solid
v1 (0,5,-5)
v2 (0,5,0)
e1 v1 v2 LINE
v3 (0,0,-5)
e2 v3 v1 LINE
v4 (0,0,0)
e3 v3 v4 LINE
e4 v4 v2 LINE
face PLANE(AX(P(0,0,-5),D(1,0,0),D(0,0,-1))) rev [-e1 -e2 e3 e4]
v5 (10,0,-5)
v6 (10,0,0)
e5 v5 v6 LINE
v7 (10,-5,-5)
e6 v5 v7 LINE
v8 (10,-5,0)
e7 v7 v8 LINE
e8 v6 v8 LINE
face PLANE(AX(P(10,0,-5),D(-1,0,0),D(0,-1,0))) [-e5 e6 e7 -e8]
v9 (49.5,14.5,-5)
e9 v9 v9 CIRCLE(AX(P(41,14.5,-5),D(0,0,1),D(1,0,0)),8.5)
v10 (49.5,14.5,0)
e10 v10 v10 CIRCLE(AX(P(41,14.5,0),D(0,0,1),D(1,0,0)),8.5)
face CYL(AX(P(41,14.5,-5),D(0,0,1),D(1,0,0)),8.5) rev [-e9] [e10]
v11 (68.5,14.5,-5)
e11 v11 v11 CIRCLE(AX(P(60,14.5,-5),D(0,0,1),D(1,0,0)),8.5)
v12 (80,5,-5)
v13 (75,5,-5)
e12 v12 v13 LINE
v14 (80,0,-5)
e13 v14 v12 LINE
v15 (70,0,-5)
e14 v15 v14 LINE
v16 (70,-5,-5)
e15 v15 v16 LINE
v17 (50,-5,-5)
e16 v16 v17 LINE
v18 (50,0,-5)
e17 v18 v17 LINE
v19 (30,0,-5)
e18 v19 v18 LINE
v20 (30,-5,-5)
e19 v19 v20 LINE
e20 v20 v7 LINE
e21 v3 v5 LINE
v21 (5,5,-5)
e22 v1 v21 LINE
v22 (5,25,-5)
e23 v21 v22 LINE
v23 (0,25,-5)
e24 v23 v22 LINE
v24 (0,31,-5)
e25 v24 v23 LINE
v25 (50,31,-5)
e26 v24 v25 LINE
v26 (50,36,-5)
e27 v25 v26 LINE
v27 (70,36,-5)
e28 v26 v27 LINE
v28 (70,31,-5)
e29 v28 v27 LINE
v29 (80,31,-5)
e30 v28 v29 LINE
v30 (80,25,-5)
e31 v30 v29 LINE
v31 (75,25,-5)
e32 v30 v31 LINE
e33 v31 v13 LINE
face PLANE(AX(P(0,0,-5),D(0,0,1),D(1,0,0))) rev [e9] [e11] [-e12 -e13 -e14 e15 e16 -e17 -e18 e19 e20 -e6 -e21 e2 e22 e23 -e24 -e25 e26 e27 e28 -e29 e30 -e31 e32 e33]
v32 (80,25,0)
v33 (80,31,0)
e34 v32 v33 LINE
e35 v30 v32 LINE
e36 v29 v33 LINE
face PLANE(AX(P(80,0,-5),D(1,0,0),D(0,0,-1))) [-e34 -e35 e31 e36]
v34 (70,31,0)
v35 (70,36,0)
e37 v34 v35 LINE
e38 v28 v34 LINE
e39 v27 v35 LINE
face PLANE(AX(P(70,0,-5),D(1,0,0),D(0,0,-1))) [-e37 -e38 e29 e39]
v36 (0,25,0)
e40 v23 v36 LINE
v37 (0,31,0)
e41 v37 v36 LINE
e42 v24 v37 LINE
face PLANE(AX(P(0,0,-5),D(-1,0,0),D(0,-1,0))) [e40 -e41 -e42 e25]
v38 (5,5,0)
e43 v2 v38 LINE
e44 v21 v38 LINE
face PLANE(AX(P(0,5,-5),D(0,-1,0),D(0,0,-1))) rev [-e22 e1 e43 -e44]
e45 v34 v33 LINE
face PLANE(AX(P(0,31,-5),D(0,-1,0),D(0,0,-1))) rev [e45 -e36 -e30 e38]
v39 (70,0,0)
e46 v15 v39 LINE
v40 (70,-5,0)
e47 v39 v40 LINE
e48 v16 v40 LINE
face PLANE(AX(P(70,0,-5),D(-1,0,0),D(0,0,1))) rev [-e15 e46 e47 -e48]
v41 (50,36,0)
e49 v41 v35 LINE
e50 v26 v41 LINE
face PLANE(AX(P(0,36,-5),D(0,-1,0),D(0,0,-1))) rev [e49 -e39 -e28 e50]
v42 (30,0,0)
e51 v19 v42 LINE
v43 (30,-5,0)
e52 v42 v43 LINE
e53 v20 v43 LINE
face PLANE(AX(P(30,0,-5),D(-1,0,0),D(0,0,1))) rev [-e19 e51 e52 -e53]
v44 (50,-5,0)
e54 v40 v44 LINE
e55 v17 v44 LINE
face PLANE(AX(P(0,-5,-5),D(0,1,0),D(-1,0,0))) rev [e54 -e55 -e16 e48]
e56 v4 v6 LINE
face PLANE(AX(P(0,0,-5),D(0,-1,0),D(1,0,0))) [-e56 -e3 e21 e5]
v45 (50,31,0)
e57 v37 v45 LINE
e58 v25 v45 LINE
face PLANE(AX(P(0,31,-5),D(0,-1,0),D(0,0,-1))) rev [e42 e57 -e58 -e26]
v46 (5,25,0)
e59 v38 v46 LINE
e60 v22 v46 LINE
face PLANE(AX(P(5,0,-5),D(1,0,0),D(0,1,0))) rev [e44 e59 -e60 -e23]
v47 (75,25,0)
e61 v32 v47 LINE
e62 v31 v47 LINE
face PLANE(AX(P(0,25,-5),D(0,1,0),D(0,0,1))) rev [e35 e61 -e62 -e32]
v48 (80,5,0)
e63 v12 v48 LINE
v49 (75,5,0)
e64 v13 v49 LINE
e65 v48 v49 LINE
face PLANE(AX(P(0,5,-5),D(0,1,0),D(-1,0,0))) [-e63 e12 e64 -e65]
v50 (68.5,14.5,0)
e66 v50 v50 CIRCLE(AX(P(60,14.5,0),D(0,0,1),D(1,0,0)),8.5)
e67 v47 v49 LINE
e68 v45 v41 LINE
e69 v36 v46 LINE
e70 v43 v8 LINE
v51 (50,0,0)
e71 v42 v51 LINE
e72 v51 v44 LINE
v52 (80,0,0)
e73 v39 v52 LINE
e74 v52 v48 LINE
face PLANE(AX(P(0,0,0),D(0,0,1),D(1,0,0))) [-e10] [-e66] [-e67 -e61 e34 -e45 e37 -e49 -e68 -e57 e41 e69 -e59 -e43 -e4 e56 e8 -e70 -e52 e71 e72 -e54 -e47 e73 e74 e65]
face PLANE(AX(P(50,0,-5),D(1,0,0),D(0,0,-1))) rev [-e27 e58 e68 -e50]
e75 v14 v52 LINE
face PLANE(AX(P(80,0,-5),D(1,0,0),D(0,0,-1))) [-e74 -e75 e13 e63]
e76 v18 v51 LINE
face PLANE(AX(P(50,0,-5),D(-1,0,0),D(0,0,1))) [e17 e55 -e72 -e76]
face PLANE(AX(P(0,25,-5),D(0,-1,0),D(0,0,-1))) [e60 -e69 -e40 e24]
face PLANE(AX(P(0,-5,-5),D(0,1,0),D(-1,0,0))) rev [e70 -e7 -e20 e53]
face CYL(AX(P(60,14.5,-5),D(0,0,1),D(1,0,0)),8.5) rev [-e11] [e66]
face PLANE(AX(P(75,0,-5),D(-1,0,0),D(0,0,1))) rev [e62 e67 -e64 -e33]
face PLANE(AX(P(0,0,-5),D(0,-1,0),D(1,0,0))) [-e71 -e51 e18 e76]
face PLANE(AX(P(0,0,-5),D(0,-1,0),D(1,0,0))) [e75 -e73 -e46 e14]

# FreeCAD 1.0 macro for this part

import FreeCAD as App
import Part
import Sketcher

V = App.Vector
Q = App.Units.Quantity

doc = App.newDocument("Part")
body = doc.addObject("PartDesign::Body", "Body")

# Sketch on XY plane
sketch1 = doc.addObject("Sketcher::SketchObject", "Sketch")
body.addObject(sketch1)
sketch1.AttachmentSupport = (doc.XY_Plane, [""])
sketch1.MapMode = "FlatFace"
sketch1.addGeometry([
    Part.LineSegment(V(0, 31, 0), V(0, 25, 0)),  # 0
    Part.LineSegment(V(0, 25, 0), V(5, 25, 0)),  # 1
    Part.LineSegment(V(5, 25, 0), V(5, 5, 0)),  # 2
    Part.LineSegment(V(5, 5, 0), V(0, 5, 0)),  # 3
    Part.LineSegment(V(0, 5, 0), V(0, 0, 0)),  # 4
    Part.LineSegment(V(0, 0, 0), V(10, 0, 0)),  # 5
    Part.LineSegment(V(10, 0, 0), V(10, -5, 0)),  # 6
    Part.LineSegment(V(10, -5, 0), V(30, -5, 0)),  # 7
    Part.LineSegment(V(30, -5, 0), V(30, 0, 0)),  # 8
    Part.LineSegment(V(30, 0, 0), V(50, 0, 0)),  # 9
    Part.LineSegment(V(50, 0, 0), V(50, -5, 0)),  # 10
    Part.LineSegment(V(50, -5, 0), V(70, -5, 0)),  # 11
    Part.LineSegment(V(70, -5, 0), V(70, 0, 0)),  # 12
    Part.LineSegment(V(70, 0, 0), V(80, 0, 0)),  # 13
    Part.LineSegment(V(80, 0, 0), V(80, 5, 0)),  # 14
    Part.LineSegment(V(80, 5, 0), V(75, 5, 0)),  # 15
    Part.LineSegment(V(75, 5, 0), V(75, 25, 0)),  # 16
    Part.LineSegment(V(75, 25, 0), V(80, 25, 0)),  # 17
    Part.LineSegment(V(80, 25, 0), V(80, 31, 0)),  # 18
    Part.LineSegment(V(80, 31, 0), V(70, 31, 0)),  # 19
    Part.LineSegment(V(70, 31, 0), V(70, 36, 0)),  # 20
    Part.LineSegment(V(70, 36, 0), V(50, 36, 0)),  # 21
    Part.LineSegment(V(50, 36, 0), V(50, 31, 0)),  # 22
    Part.LineSegment(V(50, 31, 0), V(0, 31, 0)),  # 23
    Part.Circle(V(41, 14, 0), V(0, 0, 1), 8),  # 24
    Part.Circle(V(60, 14, 0), V(0, 0, 1), 8),  # 25
], False)
sketch1.addConstraint([
    Sketcher.Constraint("Coincident", 0, 2, 1, 1),
    Sketcher.Constraint("Coincident", 1, 2, 2, 1),
    Sketcher.Constraint("Coincident", 2, 2, 3, 1),
    Sketcher.Constraint("Coincident", 3, 2, 4, 1),
    Sketcher.Constraint("Coincident", 4, 2, 5, 1),
    Sketcher.Constraint("Coincident", 5, 2, 6, 1),
    Sketcher.Constraint("Coincident", 6, 2, 7, 1),
    Sketcher.Constraint("Coincident", 7, 2, 8, 1),
    Sketcher.Constraint("Coincident", 8, 2, 9, 1),
    Sketcher.Constraint("Coincident", 9, 2, 10, 1),
    Sketcher.Constraint("Coincident", 10, 2, 11, 1),
    Sketcher.Constraint("Coincident", 11, 2, 12, 1),
    Sketcher.Constraint("Coincident", 12, 2, 13, 1),
    Sketcher.Constraint("Coincident", 13, 2, 14, 1),
    Sketcher.Constraint("Coincident", 14, 2, 15, 1),
    Sketcher.Constraint("Coincident", 15, 2, 16, 1),
    Sketcher.Constraint("Coincident", 16, 2, 17, 1),
    Sketcher.Constraint("Coincident", 17, 2, 18, 1),
    Sketcher.Constraint("Coincident", 18, 2, 19, 1),
    Sketcher.Constraint("Coincident", 19, 2, 20, 1),
    Sketcher.Constraint("Coincident", 20, 2, 21, 1),
    Sketcher.Constraint("Coincident", 21, 2, 22, 1),
    Sketcher.Constraint("Coincident", 22, 2, 23, 1),
    Sketcher.Constraint("Coincident", 23, 2, 0, 1),
    Sketcher.Constraint("Vertical", 0),
    Sketcher.Constraint("Horizontal", 1),
    Sketcher.Constraint("Vertical", 2),
    Sketcher.Constraint("Horizontal", 3),
    Sketcher.Constraint("Vertical", 4),
    Sketcher.Constraint("Horizontal", 5),
    Sketcher.Constraint("Vertical", 6),
    Sketcher.Constraint("Horizontal", 7),
    Sketcher.Constraint("Vertical", 8),
    Sketcher.Constraint("Horizontal", 9),
    Sketcher.Constraint("Vertical", 10),
    Sketcher.Constraint("Horizontal", 11),
    Sketcher.Constraint("Vertical", 12),
    Sketcher.Constraint("Horizontal", 13),
    Sketcher.Constraint("Vertical", 14),
    Sketcher.Constraint("Horizontal", 15),
    Sketcher.Constraint("Vertical", 16),
    Sketcher.Constraint("Horizontal", 17),
    Sketcher.Constraint("Vertical", 18),
    Sketcher.Constraint("Horizontal", 19),
    Sketcher.Constraint("Vertical", 20),
    Sketcher.Constraint("Horizontal", 21),
    Sketcher.Constraint("Vertical", 22),
    Sketcher.Constraint("Horizontal", 23),
    Sketcher.Constraint("Coincident", 4, 2, -1, 1),
    Sketcher.Constraint("Equal", 24, 25),
    Sketcher.Constraint("PointOnObject", 0, 2, -2),
    Sketcher.Constraint("PointOnObject", 8, 2, -1),
    Sketcher.Constraint("PointOnObject", 12, 2, -1),
    Sketcher.Constraint("Horizontal", 24, 3, 25, 3),
    Sketcher.Constraint("Horizontal", 7, 2, 10, 2),
    Sketcher.Constraint("Horizontal", 3, 2, 14, 2),
    Sketcher.Constraint("Horizontal", 1, 2, 16, 2),
    Sketcher.Constraint("Horizontal", 19, 2, 22, 2),
    Sketcher.Constraint("Vertical", 14, 2, 17, 2),
    Sketcher.Constraint("Vertical", 12, 2, 19, 2),
    Sketcher.Constraint("Vertical", 10, 2, 21, 2),
    Sketcher.Constraint("Equal", 7, 9),
    Sketcher.Constraint("Equal", 9, 11),
    Sketcher.Constraint("Equal", 5, 13),
    Sketcher.Constraint("Equal", 3, 15),
    Sketcher.Constraint("Equal", 21, 2),
    Sketcher.Constraint("Equal", 17, 4),
    Sketcher.Constraint("Equal", 4, 6),
    Sketcher.Constraint("Equal", 14, 20),
    Sketcher.Constraint("Diameter", 24, Q("17 mm")),
    Sketcher.Constraint("DistanceX", 1, 1, 1, 2, Q("5 mm")),
    Sketcher.Constraint("DistanceX", 5, 1, 5, 2, Q("10 mm")),
    Sketcher.Constraint("DistanceX", 7, 1, 7, 2, Q("20 mm")),
    Sketcher.Constraint("DistanceY", 0, 2, 0, 1, Q("6 mm")),
    Sketcher.Constraint("DistanceX", -1, 1, 24, 3, Q("41 mm")),
    Sketcher.Constraint("DistanceX", -1, 1, 25, 3, Q("60 mm")),
    Sketcher.Constraint("DistanceY", -1, 1, 24, 3, Q("14.5 mm")),
])
pad1 = doc.addObject("PartDesign::Pad", "Pad")
body.addObject(pad1)
pad1.Profile = sketch1
pad1.Length = 5
pad1.Reversed = True

doc.recompute()
